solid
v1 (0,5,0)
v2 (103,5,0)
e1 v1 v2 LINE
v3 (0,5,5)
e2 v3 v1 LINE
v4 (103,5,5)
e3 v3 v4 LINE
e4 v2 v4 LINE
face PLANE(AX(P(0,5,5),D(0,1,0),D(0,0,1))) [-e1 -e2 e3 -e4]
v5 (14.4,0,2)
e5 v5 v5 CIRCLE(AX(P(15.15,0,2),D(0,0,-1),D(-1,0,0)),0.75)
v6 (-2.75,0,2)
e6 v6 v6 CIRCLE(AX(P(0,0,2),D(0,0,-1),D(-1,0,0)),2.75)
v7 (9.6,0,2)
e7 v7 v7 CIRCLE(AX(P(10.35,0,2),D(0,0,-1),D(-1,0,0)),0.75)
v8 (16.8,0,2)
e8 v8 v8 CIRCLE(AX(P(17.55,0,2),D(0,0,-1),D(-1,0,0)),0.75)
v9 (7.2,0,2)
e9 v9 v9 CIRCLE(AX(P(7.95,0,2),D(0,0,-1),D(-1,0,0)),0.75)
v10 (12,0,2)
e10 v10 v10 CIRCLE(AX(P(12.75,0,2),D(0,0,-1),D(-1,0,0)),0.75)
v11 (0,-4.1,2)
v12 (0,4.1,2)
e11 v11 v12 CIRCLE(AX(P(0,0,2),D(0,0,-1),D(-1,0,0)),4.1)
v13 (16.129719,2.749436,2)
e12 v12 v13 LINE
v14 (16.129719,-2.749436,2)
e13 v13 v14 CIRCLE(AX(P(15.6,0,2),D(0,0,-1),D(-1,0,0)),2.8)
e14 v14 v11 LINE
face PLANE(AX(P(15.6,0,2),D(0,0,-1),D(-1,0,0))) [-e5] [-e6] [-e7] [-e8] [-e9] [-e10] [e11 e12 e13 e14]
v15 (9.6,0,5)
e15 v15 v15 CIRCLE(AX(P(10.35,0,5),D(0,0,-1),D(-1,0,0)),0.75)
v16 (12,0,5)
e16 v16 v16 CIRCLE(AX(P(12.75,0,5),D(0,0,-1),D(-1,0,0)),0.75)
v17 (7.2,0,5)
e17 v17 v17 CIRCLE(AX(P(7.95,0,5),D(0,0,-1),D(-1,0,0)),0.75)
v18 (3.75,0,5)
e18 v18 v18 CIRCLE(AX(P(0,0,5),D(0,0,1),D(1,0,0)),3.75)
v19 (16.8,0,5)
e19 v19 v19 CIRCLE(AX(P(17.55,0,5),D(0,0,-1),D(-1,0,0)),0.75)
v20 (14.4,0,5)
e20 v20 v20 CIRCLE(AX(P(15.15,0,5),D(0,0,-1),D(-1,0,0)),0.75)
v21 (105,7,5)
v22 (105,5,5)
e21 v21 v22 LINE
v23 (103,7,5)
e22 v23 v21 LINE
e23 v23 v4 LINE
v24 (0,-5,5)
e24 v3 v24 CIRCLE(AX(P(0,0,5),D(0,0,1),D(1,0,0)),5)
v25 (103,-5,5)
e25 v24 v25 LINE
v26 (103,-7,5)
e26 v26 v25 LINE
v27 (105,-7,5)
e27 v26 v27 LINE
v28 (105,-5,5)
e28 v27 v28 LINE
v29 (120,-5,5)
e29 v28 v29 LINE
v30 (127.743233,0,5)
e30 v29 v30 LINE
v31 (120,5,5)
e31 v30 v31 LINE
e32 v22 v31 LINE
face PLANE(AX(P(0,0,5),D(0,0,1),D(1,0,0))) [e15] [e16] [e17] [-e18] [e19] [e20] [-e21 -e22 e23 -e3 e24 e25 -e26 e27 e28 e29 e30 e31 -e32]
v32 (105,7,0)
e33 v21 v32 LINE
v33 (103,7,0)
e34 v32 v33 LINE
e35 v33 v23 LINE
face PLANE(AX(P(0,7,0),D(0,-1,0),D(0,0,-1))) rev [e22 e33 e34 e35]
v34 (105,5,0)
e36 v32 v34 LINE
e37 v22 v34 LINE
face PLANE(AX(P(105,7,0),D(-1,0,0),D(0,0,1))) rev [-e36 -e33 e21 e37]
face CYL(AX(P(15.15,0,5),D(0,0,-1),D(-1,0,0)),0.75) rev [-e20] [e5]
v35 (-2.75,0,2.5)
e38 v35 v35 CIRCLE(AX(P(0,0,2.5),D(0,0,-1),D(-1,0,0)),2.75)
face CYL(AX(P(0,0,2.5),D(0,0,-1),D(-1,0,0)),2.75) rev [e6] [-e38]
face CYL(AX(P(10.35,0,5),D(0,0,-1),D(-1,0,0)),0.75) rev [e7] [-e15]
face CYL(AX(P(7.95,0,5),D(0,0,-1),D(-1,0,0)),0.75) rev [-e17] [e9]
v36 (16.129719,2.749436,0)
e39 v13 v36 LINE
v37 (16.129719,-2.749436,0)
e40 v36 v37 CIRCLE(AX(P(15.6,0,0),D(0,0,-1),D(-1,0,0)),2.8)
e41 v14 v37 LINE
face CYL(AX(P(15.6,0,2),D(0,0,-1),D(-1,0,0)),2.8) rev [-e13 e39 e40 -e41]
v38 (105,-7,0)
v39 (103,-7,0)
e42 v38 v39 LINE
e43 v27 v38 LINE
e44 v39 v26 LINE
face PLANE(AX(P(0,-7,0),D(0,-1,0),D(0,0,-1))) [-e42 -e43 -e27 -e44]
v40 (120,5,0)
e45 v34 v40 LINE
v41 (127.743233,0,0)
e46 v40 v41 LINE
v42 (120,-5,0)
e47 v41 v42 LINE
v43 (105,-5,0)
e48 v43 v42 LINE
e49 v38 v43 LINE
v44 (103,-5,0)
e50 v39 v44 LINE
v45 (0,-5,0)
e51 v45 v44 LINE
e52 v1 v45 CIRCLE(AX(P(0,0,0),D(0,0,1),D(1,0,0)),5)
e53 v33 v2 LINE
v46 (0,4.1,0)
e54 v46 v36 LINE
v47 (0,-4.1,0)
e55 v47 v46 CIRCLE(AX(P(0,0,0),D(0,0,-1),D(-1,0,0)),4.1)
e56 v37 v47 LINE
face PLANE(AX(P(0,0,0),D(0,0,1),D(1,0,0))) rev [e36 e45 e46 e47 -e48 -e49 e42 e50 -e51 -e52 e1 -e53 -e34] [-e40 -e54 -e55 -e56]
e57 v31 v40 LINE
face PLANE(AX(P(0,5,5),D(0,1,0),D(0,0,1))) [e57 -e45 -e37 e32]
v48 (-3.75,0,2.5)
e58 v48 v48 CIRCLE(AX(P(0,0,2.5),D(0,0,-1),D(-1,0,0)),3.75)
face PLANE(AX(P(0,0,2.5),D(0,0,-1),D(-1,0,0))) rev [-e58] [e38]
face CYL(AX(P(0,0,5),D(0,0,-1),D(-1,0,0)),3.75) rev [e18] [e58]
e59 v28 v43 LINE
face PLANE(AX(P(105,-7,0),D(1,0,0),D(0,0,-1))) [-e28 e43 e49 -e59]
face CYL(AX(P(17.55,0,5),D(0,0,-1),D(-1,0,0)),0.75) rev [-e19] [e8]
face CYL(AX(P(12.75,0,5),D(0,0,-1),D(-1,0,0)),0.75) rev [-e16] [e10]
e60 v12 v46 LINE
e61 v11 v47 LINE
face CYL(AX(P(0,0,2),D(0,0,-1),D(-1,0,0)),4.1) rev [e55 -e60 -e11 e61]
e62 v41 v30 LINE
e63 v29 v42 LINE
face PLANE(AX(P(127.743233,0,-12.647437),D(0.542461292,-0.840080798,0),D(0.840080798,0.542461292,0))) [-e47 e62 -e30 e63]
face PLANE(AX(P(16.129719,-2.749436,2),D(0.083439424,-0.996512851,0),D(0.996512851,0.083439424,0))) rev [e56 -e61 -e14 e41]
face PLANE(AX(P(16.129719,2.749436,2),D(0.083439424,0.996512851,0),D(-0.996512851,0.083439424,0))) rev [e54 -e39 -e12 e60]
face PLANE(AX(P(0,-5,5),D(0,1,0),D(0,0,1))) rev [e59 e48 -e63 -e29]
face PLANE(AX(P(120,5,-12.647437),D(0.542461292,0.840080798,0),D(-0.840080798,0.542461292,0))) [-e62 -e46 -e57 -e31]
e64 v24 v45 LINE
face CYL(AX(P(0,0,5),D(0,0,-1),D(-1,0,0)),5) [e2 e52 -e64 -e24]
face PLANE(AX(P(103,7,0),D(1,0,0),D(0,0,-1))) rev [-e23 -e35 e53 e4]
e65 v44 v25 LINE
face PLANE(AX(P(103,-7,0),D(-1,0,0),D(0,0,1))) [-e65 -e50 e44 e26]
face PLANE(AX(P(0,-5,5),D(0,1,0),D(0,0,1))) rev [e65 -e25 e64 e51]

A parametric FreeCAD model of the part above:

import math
import FreeCAD as App
import Part
import Sketcher

doc = App.newDocument("Part")
params = doc.addObject("Spreadsheet::Sheet", "Params")
for row, (alias, value) in enumerate([
    ("sketch1_radius", "5 mm"),
    ("sketch1_diameter", "7.5 mm"),
    ("sketch1_width", "120 mm"),
    ("pad1_length", "5 mm"),
    ("sketch2_radius", "2.8 mm"),
    ("sketch2_radius2", "4.1 mm"),
    ("pocket1_length", "2 mm"),
    ("sketch3_diameter", "7.5 mm"),
    ("sketch3_diameter2", "5.5 mm"),
    ("pad2_length", "0.5 mm"),
    ("sketch4_width", "2 mm"),
    ("sketch4_height", "5 mm"),
    ("pad3_length", "2 mm"),
    ("sketch5_width", "2 mm"),
    ("sketch5_height", "5 mm"),
    ("pad4_length", "12 mm"),
    ("sketch6_diameter", "1.5 mm"),
    ("sketch7_height", "10 mm"),
    ("pad5_length", "5 mm"),
], start=1):
    params.set(f"A{row}", alias)
    params.set(f"B{row}", "=" + value)
    params.setAlias(f"B{row}", alias)

body = doc.addObject("PartDesign::Body", "Body")

# Sketch on XY plane
sketch1 = body.newObject("Sketcher::SketchObject", "Sketch")
sketch1.AttachmentSupport = (doc.getObject("XY_Plane"), [""])
sketch1.MapMode = "FlatFace"
sketch1.addGeometry([
    Part.LineSegment(App.Vector(120, -5, 0), App.Vector(120, 5, 0)),  # 0
    Part.LineSegment(App.Vector(120, 5, 0), App.Vector(0, 5, 0)),  # 1
    Part.ArcOfCircle(Part.Circle(App.Vector(0, 0, 0), App.Vector(0, 0, 1), 5), math.radians(90), math.radians(270)),  # 2
    Part.LineSegment(App.Vector(0, -5, 0), App.Vector(120, -5, 0)),  # 3
    Part.Circle(App.Vector(0, 0, 0), App.Vector(0, 0, 1), 3.8),  # 4
], False)
sketch1.addConstraint([
    Sketcher.Constraint("Coincident", 0, 2, 1, 1),
    Sketcher.Constraint("Tangent", 1, 2, 2, 1),
    Sketcher.Constraint("Tangent", 2, 2, 3, 1),
    Sketcher.Constraint("Coincident", 3, 2, 0, 1),
    Sketcher.Constraint("Vertical", 0),
    Sketcher.Constraint("Horizontal", 1),
    Sketcher.Constraint("Horizontal", 3),
    Sketcher.Constraint("Coincident", 2, 3, -1, 1),
    Sketcher.Constraint("Coincident", 4, 3, -1, 1),
    Sketcher.Constraint("Radius", 2, 5.0),
    Sketcher.Constraint("Diameter", 4, 7.5),
    Sketcher.Constraint("DistanceX", 1, 2, 1, 1, 120.0),
])
sketch1.setExpression("Constraints[9]", "Params.sketch1_radius")
sketch1.setExpression("Constraints[10]", "Params.sketch1_diameter")
sketch1.setExpression("Constraints[11]", "Params.sketch1_width")
pad1 = body.newObject("PartDesign::Pad", "Pad")
pad1.Profile = sketch1
pad1.setExpression("Length", "Params.pad1_length")

# Sketch on XY plane
sketch2 = body.newObject("Sketcher::SketchObject", "Sketch001")
sketch2.AttachmentSupport = (doc.getObject("XY_Plane"), [""])
sketch2.MapMode = "FlatFace"
sketch2.addGeometry([
    Part.LineSegment(App.Vector(0, 4.1, 0), App.Vector(16.1, 2.7, 0)),
    Part.ArcOfCircle(Part.Circle(App.Vector(15.6, 0, 0), App.Vector(0, 0, 1), 2.8), math.radians(-79), math.radians(79)),
    Part.LineSegment(App.Vector(16.1, -2.7, 0), App.Vector(0, -4.1, 0)),
    Part.ArcOfCircle(Part.Circle(App.Vector(0, 0, 0), App.Vector(0, 0, 1), 4.1), math.radians(90), math.radians(270)),
], False)
sketch2.addConstraint([
    Sketcher.Constraint("Coincident", 0, 2, 1, 2),
    Sketcher.Constraint("Coincident", 1, 1, 2, 1),
    Sketcher.Constraint("Coincident", 2, 2, 3, 2),
    Sketcher.Constraint("Coincident", 3, 1, 0, 1),
    Sketcher.Constraint("Coincident", 3, 3, -1, 1),
    Sketcher.Constraint("Symmetric", 0, 2, 1, 1, -1),
    Sketcher.Constraint("PointOnObject", 2, 2, -2),
    Sketcher.Constraint("PointOnObject", 3, 1, -2),
    Sketcher.Constraint("Radius", 1, 2.8),
    Sketcher.Constraint("Radius", 3, 4.1),
    Sketcher.Constraint("DistanceX", -1, 1, 1, 3, 15.6),
    Sketcher.Constraint("DistanceX", -1, 1, 0, 2, 16.129719),
])
sketch2.setExpression("Constraints[8]", "Params.sketch2_radius")
sketch2.setExpression("Constraints[9]", "Params.sketch2_radius2")
pocket1 = body.newObject("PartDesign::Pocket", "Pocket")
pocket1.Profile = sketch2
pocket1.setExpression("Length", "Params.pocket1_length")
pocket1.Reversed = True

# Sketch on XY plane
sketch3 = body.newObject("Sketcher::SketchObject", "Sketch002")
sketch3.AttachmentSupport = (doc.getObject("XY_Plane"), [""])
sketch3.MapMode = "FlatFace"
sketch3.AttachmentOffset = App.Placement(App.Vector(0, 0, 2), App.Rotation())
sketch3.addGeometry([
    Part.Circle(App.Vector(0, 0, 0), App.Vector(0, 0, 1), 3.8),
    Part.Circle(App.Vector(0, 0, 0), App.Vector(0, 0, 1), 2.8),
], False)
sketch3.addConstraint([
    Sketcher.Constraint("Coincident", 0, 3, -1, 1),
    Sketcher.Constraint("Coincident", 1, 3, -1, 1),
    Sketcher.Constraint("Diameter", 0, 7.5),
    Sketcher.Constraint("Diameter", 1, 5.5),
])
sketch3.setExpression("Constraints[2]", "Params.sketch3_diameter")
sketch3.setExpression("Constraints[3]", "Params.sketch3_diameter2")
pad2 = body.newObject("PartDesign::Pad", "Pad001")
pad2.Profile = sketch3
pad2.setExpression("Length", "Params.pad2_length")

# Sketch on XZ plane
sketch4 = body.newObject("Sketcher::SketchObject", "Sketch003")
sketch4.AttachmentSupport = (doc.getObject("XZ_Plane"), [""])
sketch4.MapMode = "FlatFace"
sketch4.AttachmentOffset = App.Placement(App.Vector(0, 0, -5), App.Rotation())
sketch4.addGeometry([
    Part.LineSegment(App.Vector(103, 0, 0), App.Vector(103, 5, 0)),
    Part.LineSegment(App.Vector(103, 5, 0), App.Vector(105, 5, 0)),
    Part.LineSegment(App.Vector(105, 5, 0), App.Vector(105, 0, 0)),
    Part.LineSegment(App.Vector(105, 0, 0), App.Vector(103, 0, 0)),
], False)
sketch4.addConstraint([
    Sketcher.Constraint("Coincident", 0, 2, 1, 1),
    Sketcher.Constraint("Coincident", 1, 2, 2, 1),
    Sketcher.Constraint("Coincident", 2, 2, 3, 1),
    Sketcher.Constraint("Coincident", 3, 2, 0, 1),
    Sketcher.Constraint("Vertical", 0),
    Sketcher.Constraint("Horizontal", 1),
    Sketcher.Constraint("Vertical", 2),
    Sketcher.Constraint("Horizontal", 3),
    Sketcher.Constraint("PointOnObject", 2, 2, -1),
    Sketcher.Constraint("DistanceX", 1, 1, 1, 2, 2.0),
    Sketcher.Constraint("DistanceY", 0, 1, 0, 2, 5.0),
    Sketcher.Constraint("DistanceX", -1, 1, 0, 2, 103.0),
])
sketch4.setExpression("Constraints[9]", "Params.sketch4_width")
sketch4.setExpression("Constraints[10]", "Params.sketch4_height")
pad3 = body.newObject("PartDesign::Pad", "Pad002")
pad3.Profile = sketch4
pad3.setExpression("Length", "Params.pad3_length")
pad3.Reversed = True

# Sketch on XZ plane
sketch5 = body.newObject("Sketcher::SketchObject", "Sketch004")
sketch5.AttachmentSupport = (doc.getObject("XZ_Plane"), [""])
sketch5.MapMode = "FlatFace"
sketch5.AttachmentOffset = App.Placement(App.Vector(0, 0, -5), App.Rotation())
sketch5.addGeometry([
    Part.LineSegment(App.Vector(103, 0, 0), App.Vector(103, 5, 0)),
    Part.LineSegment(App.Vector(103, 5, 0), App.Vector(105, 5, 0)),
    Part.LineSegment(App.Vector(105, 5, 0), App.Vector(105, 0, 0)),
    Part.LineSegment(App.Vector(105, 0, 0), App.Vector(103, 0, 0)),
], False)
sketch5.addConstraint([
    Sketcher.Constraint("Coincident", 0, 2, 1, 1),
    Sketcher.Constraint("Coincident", 1, 2, 2, 1),
    Sketcher.Constraint("Coincident", 2, 2, 3, 1),
    Sketcher.Constraint("Coincident", 3, 2, 0, 1),
    Sketcher.Constraint("Vertical", 0),
    Sketcher.Constraint("Horizontal", 1),
    Sketcher.Constraint("Vertical", 2),
    Sketcher.Constraint("Horizontal", 3),
    Sketcher.Constraint("PointOnObject", 2, 2, -1),
    Sketcher.Constraint("DistanceX", 1, 1, 1, 2, 2.0),
    Sketcher.Constraint("DistanceY", 0, 1, 0, 2, 5.0),
    Sketcher.Constraint("DistanceX", -1, 1, 0, 2, 103.0),
])
sketch5.setExpression("Constraints[9]", "Params.sketch5_width")
sketch5.setExpression("Constraints[10]", "Params.sketch5_height")
pad4 = body.newObject("PartDesign::Pad", "Pad003")
pad4.Profile = sketch5
pad4.setExpression("Length", "Params.pad4_length")

# Sketch on XY plane
sketch6 = body.newObject("Sketcher::SketchObject", "Sketch005")
sketch6.AttachmentSupport = (doc.getObject("XY_Plane"), [""])
sketch6.MapMode = "FlatFace"
sketch6.AttachmentOffset = App.Placement(App.Vector(0, 0, 2), App.Rotation())
sketch6.addGeometry([
    Part.Circle(App.Vector(17.6, 0, 0), App.Vector(0, 0, 1), 0.8),  # 0
    Part.Circle(App.Vector(15.2, 0, 0), App.Vector(0, 0, 1), 0.8),  # 1
    Part.Circle(App.Vector(12.8, 0, 0), App.Vector(0, 0, 1), 0.8),  # 2
    Part.Circle(App.Vector(10.3, 0, 0), App.Vector(0, 0, 1), 0.8),  # 3
    Part.Circle(App.Vector(8, 0, 0), App.Vector(0, 0, 1), 0.8),  # 4
], False)
sketch6.addConstraint([
    Sketcher.Constraint("Equal", 0, 1),
    Sketcher.Constraint("Equal", 1, 2),
    Sketcher.Constraint("Equal", 2, 3),
    Sketcher.Constraint("Equal", 3, 4),
    Sketcher.Constraint("PointOnObject", 0, 3, -1),
    Sketcher.Constraint("PointOnObject", 1, 3, -1),
    Sketcher.Constraint("PointOnObject", 2, 3, -1),
    Sketcher.Constraint("PointOnObject", 3, 3, -1),
    Sketcher.Constraint("PointOnObject", 4, 3, -1),
    Sketcher.Constraint("Diameter", 0, 1.5),
    Sketcher.Constraint("DistanceX", 1, 3, 0, 3, 2.4),
    Sketcher.Constraint("DistanceX", 2, 3, 1, 3, 2.4),
    Sketcher.Constraint("DistanceX", 3, 3, 2, 3, 2.4),
    Sketcher.Constraint("DistanceX", 4, 3, 3, 3, 2.4),
    Sketcher.Constraint("DistanceX", -1, 1, 0, 3, 17.55),
])
sketch6.setExpression("Constraints[9]", "Params.sketch6_diameter")
pocket2 = body.newObject("PartDesign::Pocket", "Pocket001")
pocket2.Profile = sketch6
pocket2.Type = "ThroughAll"
pocket2.Midplane = True

# Sketch on XY plane
sketch7 = body.newObject("Sketcher::SketchObject", "Sketch006")
sketch7.AttachmentSupport = (doc.getObject("XY_Plane"), [""])
sketch7.MapMode = "FlatFace"
sketch7.AttachmentOffset = App.Placement(App.Vector(0, 0, 5), App.Rotation())
sketch7.addGeometry([
    Part.LineSegment(App.Vector(128, 0, 0), App.Vector(120, 5, 0)),
    Part.LineSegment(App.Vector(120, 5, 0), App.Vector(120, -5, 0)),
    Part.LineSegment(App.Vector(120, -5, 0), App.Vector(128, 0, 0)),
], False)
sketch7.addConstraint([
    Sketcher.Constraint("Coincident", 0, 2, 1, 1),
    Sketcher.Constraint("Coincident", 1, 2, 2, 1),
    Sketcher.Constraint("Coincident", 2, 2, 0, 1),
    Sketcher.Constraint("Vertical", 1),
    Sketcher.Constraint("PointOnObject", 2, 2, -1),
    Sketcher.Constraint("Equal", 0, 2),
    Sketcher.Constraint("DistanceY", 1, 2, 1, 1, 10.0),
    Sketcher.Constraint("DistanceX", -1, 1, 0, 2, 120.0),
    Sketcher.Constraint("Distance", 0, 9.217248),
])
sketch7.setExpression("Constraints[6]", "Params.sketch7_height")
pad5 = body.newObject("PartDesign::Pad", "Pad004")
pad5.Profile = sketch7
pad5.setExpression("Length", "Params.pad5_length")
pad5.Reversed = True

doc.recompute()
